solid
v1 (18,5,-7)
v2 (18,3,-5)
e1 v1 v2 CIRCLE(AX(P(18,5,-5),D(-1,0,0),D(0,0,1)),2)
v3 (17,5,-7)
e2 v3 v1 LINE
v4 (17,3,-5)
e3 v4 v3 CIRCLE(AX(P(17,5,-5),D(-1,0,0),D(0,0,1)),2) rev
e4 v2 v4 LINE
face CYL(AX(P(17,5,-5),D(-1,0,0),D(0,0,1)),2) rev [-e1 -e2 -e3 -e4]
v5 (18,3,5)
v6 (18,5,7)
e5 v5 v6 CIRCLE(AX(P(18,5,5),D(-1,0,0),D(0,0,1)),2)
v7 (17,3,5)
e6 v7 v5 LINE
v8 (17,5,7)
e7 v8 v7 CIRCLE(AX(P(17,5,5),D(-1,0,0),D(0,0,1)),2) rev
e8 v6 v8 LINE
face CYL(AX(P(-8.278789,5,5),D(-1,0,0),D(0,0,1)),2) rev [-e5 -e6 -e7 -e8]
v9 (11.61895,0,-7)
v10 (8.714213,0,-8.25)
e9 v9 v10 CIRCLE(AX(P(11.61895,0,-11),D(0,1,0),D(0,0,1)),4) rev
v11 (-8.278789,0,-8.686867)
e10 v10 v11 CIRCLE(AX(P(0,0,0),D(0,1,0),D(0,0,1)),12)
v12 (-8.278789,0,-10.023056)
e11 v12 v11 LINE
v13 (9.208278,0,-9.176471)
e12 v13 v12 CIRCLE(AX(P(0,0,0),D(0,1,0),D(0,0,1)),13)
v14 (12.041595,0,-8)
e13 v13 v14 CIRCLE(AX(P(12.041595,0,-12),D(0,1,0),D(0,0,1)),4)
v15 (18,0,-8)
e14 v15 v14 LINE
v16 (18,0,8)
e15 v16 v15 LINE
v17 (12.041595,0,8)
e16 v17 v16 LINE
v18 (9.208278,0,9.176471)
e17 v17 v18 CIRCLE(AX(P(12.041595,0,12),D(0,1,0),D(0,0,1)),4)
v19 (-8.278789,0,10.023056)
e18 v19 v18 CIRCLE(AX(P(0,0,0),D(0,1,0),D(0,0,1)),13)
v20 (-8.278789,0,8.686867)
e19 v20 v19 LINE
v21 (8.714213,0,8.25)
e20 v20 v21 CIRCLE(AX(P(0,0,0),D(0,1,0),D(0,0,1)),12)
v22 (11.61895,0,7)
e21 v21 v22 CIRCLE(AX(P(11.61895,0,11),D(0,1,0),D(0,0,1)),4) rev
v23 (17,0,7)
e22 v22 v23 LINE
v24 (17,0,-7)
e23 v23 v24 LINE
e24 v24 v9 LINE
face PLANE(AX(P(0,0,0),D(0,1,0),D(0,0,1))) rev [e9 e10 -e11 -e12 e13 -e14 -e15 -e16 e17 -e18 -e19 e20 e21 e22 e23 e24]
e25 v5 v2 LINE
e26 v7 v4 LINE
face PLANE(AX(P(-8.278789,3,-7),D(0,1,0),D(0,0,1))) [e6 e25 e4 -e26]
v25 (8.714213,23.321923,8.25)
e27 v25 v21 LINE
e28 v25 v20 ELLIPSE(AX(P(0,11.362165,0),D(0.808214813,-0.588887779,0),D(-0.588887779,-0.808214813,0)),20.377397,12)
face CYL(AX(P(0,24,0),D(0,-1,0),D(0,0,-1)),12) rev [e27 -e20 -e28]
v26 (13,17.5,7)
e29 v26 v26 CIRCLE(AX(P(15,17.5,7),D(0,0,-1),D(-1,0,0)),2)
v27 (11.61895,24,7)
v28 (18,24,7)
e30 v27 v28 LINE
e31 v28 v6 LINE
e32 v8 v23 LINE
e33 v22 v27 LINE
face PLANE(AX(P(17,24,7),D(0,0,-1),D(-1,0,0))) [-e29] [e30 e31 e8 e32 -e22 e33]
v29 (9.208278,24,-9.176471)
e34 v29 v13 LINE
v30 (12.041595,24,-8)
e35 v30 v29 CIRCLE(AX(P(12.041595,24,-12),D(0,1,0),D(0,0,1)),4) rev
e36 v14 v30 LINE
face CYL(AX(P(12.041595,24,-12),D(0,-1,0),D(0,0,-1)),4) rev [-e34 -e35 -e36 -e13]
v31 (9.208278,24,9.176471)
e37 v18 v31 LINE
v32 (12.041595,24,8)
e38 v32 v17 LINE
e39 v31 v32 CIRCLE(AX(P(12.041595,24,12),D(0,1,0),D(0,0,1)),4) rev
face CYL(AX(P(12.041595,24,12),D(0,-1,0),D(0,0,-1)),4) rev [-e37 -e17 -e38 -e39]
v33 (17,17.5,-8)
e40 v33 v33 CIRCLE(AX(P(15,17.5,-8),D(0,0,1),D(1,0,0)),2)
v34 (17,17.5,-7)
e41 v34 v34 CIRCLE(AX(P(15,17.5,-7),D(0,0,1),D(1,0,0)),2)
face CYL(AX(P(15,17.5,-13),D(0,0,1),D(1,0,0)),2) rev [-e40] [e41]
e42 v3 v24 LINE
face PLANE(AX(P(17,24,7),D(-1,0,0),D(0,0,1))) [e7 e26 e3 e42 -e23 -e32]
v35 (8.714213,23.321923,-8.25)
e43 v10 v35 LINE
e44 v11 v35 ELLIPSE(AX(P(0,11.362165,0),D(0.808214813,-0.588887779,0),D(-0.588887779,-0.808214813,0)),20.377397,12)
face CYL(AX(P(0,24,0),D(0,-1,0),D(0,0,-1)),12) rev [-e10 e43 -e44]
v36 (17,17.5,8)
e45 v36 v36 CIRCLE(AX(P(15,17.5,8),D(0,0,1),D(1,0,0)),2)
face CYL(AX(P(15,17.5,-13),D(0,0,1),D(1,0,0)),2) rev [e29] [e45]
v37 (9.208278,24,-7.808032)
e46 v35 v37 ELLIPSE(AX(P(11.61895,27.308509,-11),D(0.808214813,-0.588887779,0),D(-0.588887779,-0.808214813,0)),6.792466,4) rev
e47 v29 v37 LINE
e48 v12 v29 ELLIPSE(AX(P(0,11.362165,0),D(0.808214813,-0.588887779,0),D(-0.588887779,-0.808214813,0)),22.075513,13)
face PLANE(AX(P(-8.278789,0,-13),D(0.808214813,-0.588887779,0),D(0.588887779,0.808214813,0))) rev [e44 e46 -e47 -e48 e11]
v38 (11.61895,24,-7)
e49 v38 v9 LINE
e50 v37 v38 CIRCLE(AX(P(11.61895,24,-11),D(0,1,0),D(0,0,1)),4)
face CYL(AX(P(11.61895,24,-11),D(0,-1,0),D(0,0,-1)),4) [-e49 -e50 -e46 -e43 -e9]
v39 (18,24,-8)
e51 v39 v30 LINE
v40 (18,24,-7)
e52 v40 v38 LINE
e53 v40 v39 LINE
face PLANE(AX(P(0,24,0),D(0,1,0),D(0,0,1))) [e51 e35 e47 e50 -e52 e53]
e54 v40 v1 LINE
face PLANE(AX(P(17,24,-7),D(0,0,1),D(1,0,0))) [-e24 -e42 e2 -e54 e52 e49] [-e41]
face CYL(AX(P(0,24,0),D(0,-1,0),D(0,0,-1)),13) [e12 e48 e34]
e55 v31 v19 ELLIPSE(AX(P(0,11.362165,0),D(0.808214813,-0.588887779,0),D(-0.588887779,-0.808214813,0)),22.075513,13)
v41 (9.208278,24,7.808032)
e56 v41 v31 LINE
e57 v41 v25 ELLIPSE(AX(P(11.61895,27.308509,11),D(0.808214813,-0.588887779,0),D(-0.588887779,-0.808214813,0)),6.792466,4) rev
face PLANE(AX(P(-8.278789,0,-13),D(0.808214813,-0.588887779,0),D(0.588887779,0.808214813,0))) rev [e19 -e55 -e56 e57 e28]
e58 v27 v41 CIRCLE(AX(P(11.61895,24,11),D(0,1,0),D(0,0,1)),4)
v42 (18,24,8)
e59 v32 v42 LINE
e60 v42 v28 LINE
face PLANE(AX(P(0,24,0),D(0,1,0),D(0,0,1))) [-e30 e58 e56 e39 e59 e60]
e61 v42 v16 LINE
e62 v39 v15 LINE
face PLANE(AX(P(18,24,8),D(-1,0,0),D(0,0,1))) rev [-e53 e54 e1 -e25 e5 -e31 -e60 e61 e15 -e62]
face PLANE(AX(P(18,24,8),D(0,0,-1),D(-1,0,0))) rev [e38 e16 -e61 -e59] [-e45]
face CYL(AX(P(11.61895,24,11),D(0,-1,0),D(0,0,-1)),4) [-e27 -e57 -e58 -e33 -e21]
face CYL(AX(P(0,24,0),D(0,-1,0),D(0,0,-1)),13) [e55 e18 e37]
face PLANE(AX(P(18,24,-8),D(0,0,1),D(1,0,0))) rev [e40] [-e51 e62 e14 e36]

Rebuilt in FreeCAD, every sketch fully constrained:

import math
import FreeCAD as App
import Part
import Sketcher

V = App.Vector


def edges_at(feature, points):
    """Names of the edges that pass closest to the given points."""
    edges = feature.Shape.Edges
    near = lambda p: min(range(len(edges)), key=lambda i: edges[i].distToShape(Part.Vertex(*p))[0])
    return sorted({f"Edge{near(p) + 1}" for p in points})


def add_polygon(sketch, points):
    """Adds a closed chain of lines whose ends are joined by coincident constraints."""
    first, n = sketch.GeometryCount, len(points)
    for a, b in zip(points, points[1:] + points[:1]):
        sketch.addGeometry(Part.LineSegment(App.Vector(*a, 0), App.Vector(*b, 0)), False)
    for i in range(n):
        sketch.addConstraint(Sketcher.Constraint("Coincident", first + i, 2, first + (i + 1) % n, 1))

doc = App.newDocument("Part")
body = doc.addObject("PartDesign::Body", "Body")

sketch1 = body.newObject("Sketcher::SketchObject", "Sketch")
sketch1.AttachmentSupport = (doc.getObject("XZ_Plane"), [""])
sketch1.MapMode = "FlatFace"
sketch1.addGeometry([
    Part.LineSegment(V(10, 8, 0), V(18, 8, 0)),
    Part.LineSegment(V(18, 8, 0), V(18, -8, 0)),
    Part.LineSegment(V(18, -8, 0), V(10, -8, 0)),
    Part.ArcOfCircle(Part.Circle(V(0, 0, 0), V(0, 0, 1), 13), math.radians(38), math.radians(322)),
    Part.LineSegment(V(17, 7, 0), V(10, 7, 0)),
    Part.ArcOfCircle(Part.Circle(V(0, 0, 0), V(0, 0, 1), 12), math.radians(36), math.radians(324)),
    Part.LineSegment(V(10, -7, 0), V(17, -7, 0)),
    Part.LineSegment(V(17, -7, 0), V(17, 7, 0)),
], False)
sketch1.addConstraint([
    Sketcher.Constraint("Coincident", 0, 2, 1, 1),
    Sketcher.Constraint("Coincident", 1, 2, 2, 1),
    Sketcher.Constraint("Coincident", 2, 2, 3, 2),
    Sketcher.Constraint("Coincident", 3, 1, 0, 1),
    Sketcher.Constraint("Coincident", 4, 2, 5, 1),
    Sketcher.Constraint("Coincident", 5, 2, 6, 1),
    Sketcher.Constraint("Coincident", 6, 2, 7, 1),
    Sketcher.Constraint("Coincident", 7, 2, 4, 1),
    Sketcher.Constraint("Horizontal", 0),
    Sketcher.Constraint("Vertical", 1),
    Sketcher.Constraint("Horizontal", 2),
    Sketcher.Constraint("Horizontal", 4),
    Sketcher.Constraint("Horizontal", 6),
    Sketcher.Constraint("Vertical", 7),
    Sketcher.Constraint("Coincident", 3, 3, -1, 1),
    Sketcher.Constraint("Coincident", 5, 3, -1, 1),
    Sketcher.Constraint("Vertical", 2, 2, 3, 1),
    Sketcher.Constraint("Vertical", 4, 2, 5, 2),
    Sketcher.Constraint("Radius", 3, 13.0),
    Sketcher.Constraint("Radius", 5, 12.0),
    Sketcher.Constraint("DistanceY", 1, 2, 1, 1, 16.0),
    Sketcher.Constraint("DistanceY", 7, 1, 7, 2, 14.0),
    Sketcher.Constraint("DistanceX", -1, 1, 0, 2, 18.0),
    Sketcher.Constraint("DistanceX", -1, 1, 6, 2, 17.0),
])
pad1 = body.newObject("PartDesign::Pad", "Pad")
pad1.Profile = sketch1
pad1.Length = 24
pad1.Reversed = True
doc.recompute()

fillet = body.newObject("PartDesign::Fillet", "Fillet")
fillet.Base = (pad1, edges_at(pad1, [
    (9.747, 12, -7),
    (9.747, 12, 7),
    (10.247, 12, 8),
    (10.247, 12, -8),
]))
fillet.Radius = 4

sketch2 = body.newObject("Sketcher::SketchObject", "Sketch001")
sketch2.AttachmentSupport = (doc.getObject("XY_Plane"), [""])
sketch2.MapMode = "FlatFace"
add_polygon(sketch2, [(-13, 0), (-8.3, 0), (9.2, 24), (-13, 24)])
sketch2.addConstraint([
    Sketcher.Constraint("Horizontal", 0),
    Sketcher.Constraint("Horizontal", 2),
    Sketcher.Constraint("Vertical", 3),
    Sketcher.Constraint("PointOnObject", 0, 2, -1),
    Sketcher.Constraint("DistanceY", 3, 2, 3, 1, 24.0),
    Sketcher.Constraint("DistanceX", 2, 2, -1, 1, 13.0),
    Sketcher.Constraint("DistanceX", 0, 1, 0, 2, 4.721211),
    Sketcher.Constraint("DistanceX", 2, 2, 2, 1, 22.208278),
])
pocket1 = body.newObject("PartDesign::Pocket", "Pocket")
pocket1.Profile = sketch2
pocket1.Type = "ThroughAll"
pocket1.Midplane = True

sketch3 = body.newObject("Sketcher::SketchObject", "Sketch002")
sketch3.AttachmentSupport = (doc.getObject("XY_Plane"), [""])
sketch3.MapMode = "FlatFace"
sketch3.AttachmentOffset = App.Placement(V(0, 0, 8), App.Rotation())
sketch3.addGeometry(Part.Circle(V(15, 17.5, 0), V(0, 0, 1), 2), False)
sketch3.addConstraint([
    Sketcher.Constraint("Diameter", 0, 4.0),
    Sketcher.Constraint("DistanceX", -1, 1, 0, 3, 15.0),
    Sketcher.Constraint("DistanceY", -1, 1, 0, 3, 17.5),
])
pocket2 = body.newObject("PartDesign::Pocket", "Pocket001")
pocket2.Profile = sketch3
pocket2.Type = "ThroughAll"
pocket2.Midplane = True

sketch4 = body.newObject("Sketcher::SketchObject", "Sketch003")
sketch4.AttachmentSupport = (doc.getObject("YZ_Plane"), [""])
sketch4.MapMode = "FlatFace"
sketch4.AttachmentOffset = App.Placement(V(0, 0, 18), App.Rotation())
add_polygon(sketch4, [(26, 7), (3, 7), (3, -7), (26, -7)])
sketch4.addConstraint([
    Sketcher.Constraint("Horizontal", 0),
    Sketcher.Constraint("Vertical", 1),
    Sketcher.Constraint("Horizontal", 2),
    Sketcher.Constraint("Vertical", 3),
    Sketcher.Constraint("DistanceY", 1, 2, 1, 1, 14.0),
    Sketcher.Constraint("DistanceX", -1, 1, 0, 2, 3.0),
    Sketcher.Constraint("DistanceY", -1, 1, 0, 2, 7.0),
    Sketcher.Constraint("DistanceX", 0, 2, 0, 1, 22.802557),
])
pocket3 = body.newObject("PartDesign::Pocket", "Pocket002")
pocket3.Profile = sketch4
pocket3.Type = "ThroughAll"
pocket3.Midplane = True
doc.recompute()

fillet2 = body.newObject("PartDesign::Fillet", "Fillet001")
fillet2.Base = (pocket3, edges_at(pocket3, [(17.5, 3, -7), (17.5, 3, 7)]))
fillet2.Radius = 2

doc.recompute()
